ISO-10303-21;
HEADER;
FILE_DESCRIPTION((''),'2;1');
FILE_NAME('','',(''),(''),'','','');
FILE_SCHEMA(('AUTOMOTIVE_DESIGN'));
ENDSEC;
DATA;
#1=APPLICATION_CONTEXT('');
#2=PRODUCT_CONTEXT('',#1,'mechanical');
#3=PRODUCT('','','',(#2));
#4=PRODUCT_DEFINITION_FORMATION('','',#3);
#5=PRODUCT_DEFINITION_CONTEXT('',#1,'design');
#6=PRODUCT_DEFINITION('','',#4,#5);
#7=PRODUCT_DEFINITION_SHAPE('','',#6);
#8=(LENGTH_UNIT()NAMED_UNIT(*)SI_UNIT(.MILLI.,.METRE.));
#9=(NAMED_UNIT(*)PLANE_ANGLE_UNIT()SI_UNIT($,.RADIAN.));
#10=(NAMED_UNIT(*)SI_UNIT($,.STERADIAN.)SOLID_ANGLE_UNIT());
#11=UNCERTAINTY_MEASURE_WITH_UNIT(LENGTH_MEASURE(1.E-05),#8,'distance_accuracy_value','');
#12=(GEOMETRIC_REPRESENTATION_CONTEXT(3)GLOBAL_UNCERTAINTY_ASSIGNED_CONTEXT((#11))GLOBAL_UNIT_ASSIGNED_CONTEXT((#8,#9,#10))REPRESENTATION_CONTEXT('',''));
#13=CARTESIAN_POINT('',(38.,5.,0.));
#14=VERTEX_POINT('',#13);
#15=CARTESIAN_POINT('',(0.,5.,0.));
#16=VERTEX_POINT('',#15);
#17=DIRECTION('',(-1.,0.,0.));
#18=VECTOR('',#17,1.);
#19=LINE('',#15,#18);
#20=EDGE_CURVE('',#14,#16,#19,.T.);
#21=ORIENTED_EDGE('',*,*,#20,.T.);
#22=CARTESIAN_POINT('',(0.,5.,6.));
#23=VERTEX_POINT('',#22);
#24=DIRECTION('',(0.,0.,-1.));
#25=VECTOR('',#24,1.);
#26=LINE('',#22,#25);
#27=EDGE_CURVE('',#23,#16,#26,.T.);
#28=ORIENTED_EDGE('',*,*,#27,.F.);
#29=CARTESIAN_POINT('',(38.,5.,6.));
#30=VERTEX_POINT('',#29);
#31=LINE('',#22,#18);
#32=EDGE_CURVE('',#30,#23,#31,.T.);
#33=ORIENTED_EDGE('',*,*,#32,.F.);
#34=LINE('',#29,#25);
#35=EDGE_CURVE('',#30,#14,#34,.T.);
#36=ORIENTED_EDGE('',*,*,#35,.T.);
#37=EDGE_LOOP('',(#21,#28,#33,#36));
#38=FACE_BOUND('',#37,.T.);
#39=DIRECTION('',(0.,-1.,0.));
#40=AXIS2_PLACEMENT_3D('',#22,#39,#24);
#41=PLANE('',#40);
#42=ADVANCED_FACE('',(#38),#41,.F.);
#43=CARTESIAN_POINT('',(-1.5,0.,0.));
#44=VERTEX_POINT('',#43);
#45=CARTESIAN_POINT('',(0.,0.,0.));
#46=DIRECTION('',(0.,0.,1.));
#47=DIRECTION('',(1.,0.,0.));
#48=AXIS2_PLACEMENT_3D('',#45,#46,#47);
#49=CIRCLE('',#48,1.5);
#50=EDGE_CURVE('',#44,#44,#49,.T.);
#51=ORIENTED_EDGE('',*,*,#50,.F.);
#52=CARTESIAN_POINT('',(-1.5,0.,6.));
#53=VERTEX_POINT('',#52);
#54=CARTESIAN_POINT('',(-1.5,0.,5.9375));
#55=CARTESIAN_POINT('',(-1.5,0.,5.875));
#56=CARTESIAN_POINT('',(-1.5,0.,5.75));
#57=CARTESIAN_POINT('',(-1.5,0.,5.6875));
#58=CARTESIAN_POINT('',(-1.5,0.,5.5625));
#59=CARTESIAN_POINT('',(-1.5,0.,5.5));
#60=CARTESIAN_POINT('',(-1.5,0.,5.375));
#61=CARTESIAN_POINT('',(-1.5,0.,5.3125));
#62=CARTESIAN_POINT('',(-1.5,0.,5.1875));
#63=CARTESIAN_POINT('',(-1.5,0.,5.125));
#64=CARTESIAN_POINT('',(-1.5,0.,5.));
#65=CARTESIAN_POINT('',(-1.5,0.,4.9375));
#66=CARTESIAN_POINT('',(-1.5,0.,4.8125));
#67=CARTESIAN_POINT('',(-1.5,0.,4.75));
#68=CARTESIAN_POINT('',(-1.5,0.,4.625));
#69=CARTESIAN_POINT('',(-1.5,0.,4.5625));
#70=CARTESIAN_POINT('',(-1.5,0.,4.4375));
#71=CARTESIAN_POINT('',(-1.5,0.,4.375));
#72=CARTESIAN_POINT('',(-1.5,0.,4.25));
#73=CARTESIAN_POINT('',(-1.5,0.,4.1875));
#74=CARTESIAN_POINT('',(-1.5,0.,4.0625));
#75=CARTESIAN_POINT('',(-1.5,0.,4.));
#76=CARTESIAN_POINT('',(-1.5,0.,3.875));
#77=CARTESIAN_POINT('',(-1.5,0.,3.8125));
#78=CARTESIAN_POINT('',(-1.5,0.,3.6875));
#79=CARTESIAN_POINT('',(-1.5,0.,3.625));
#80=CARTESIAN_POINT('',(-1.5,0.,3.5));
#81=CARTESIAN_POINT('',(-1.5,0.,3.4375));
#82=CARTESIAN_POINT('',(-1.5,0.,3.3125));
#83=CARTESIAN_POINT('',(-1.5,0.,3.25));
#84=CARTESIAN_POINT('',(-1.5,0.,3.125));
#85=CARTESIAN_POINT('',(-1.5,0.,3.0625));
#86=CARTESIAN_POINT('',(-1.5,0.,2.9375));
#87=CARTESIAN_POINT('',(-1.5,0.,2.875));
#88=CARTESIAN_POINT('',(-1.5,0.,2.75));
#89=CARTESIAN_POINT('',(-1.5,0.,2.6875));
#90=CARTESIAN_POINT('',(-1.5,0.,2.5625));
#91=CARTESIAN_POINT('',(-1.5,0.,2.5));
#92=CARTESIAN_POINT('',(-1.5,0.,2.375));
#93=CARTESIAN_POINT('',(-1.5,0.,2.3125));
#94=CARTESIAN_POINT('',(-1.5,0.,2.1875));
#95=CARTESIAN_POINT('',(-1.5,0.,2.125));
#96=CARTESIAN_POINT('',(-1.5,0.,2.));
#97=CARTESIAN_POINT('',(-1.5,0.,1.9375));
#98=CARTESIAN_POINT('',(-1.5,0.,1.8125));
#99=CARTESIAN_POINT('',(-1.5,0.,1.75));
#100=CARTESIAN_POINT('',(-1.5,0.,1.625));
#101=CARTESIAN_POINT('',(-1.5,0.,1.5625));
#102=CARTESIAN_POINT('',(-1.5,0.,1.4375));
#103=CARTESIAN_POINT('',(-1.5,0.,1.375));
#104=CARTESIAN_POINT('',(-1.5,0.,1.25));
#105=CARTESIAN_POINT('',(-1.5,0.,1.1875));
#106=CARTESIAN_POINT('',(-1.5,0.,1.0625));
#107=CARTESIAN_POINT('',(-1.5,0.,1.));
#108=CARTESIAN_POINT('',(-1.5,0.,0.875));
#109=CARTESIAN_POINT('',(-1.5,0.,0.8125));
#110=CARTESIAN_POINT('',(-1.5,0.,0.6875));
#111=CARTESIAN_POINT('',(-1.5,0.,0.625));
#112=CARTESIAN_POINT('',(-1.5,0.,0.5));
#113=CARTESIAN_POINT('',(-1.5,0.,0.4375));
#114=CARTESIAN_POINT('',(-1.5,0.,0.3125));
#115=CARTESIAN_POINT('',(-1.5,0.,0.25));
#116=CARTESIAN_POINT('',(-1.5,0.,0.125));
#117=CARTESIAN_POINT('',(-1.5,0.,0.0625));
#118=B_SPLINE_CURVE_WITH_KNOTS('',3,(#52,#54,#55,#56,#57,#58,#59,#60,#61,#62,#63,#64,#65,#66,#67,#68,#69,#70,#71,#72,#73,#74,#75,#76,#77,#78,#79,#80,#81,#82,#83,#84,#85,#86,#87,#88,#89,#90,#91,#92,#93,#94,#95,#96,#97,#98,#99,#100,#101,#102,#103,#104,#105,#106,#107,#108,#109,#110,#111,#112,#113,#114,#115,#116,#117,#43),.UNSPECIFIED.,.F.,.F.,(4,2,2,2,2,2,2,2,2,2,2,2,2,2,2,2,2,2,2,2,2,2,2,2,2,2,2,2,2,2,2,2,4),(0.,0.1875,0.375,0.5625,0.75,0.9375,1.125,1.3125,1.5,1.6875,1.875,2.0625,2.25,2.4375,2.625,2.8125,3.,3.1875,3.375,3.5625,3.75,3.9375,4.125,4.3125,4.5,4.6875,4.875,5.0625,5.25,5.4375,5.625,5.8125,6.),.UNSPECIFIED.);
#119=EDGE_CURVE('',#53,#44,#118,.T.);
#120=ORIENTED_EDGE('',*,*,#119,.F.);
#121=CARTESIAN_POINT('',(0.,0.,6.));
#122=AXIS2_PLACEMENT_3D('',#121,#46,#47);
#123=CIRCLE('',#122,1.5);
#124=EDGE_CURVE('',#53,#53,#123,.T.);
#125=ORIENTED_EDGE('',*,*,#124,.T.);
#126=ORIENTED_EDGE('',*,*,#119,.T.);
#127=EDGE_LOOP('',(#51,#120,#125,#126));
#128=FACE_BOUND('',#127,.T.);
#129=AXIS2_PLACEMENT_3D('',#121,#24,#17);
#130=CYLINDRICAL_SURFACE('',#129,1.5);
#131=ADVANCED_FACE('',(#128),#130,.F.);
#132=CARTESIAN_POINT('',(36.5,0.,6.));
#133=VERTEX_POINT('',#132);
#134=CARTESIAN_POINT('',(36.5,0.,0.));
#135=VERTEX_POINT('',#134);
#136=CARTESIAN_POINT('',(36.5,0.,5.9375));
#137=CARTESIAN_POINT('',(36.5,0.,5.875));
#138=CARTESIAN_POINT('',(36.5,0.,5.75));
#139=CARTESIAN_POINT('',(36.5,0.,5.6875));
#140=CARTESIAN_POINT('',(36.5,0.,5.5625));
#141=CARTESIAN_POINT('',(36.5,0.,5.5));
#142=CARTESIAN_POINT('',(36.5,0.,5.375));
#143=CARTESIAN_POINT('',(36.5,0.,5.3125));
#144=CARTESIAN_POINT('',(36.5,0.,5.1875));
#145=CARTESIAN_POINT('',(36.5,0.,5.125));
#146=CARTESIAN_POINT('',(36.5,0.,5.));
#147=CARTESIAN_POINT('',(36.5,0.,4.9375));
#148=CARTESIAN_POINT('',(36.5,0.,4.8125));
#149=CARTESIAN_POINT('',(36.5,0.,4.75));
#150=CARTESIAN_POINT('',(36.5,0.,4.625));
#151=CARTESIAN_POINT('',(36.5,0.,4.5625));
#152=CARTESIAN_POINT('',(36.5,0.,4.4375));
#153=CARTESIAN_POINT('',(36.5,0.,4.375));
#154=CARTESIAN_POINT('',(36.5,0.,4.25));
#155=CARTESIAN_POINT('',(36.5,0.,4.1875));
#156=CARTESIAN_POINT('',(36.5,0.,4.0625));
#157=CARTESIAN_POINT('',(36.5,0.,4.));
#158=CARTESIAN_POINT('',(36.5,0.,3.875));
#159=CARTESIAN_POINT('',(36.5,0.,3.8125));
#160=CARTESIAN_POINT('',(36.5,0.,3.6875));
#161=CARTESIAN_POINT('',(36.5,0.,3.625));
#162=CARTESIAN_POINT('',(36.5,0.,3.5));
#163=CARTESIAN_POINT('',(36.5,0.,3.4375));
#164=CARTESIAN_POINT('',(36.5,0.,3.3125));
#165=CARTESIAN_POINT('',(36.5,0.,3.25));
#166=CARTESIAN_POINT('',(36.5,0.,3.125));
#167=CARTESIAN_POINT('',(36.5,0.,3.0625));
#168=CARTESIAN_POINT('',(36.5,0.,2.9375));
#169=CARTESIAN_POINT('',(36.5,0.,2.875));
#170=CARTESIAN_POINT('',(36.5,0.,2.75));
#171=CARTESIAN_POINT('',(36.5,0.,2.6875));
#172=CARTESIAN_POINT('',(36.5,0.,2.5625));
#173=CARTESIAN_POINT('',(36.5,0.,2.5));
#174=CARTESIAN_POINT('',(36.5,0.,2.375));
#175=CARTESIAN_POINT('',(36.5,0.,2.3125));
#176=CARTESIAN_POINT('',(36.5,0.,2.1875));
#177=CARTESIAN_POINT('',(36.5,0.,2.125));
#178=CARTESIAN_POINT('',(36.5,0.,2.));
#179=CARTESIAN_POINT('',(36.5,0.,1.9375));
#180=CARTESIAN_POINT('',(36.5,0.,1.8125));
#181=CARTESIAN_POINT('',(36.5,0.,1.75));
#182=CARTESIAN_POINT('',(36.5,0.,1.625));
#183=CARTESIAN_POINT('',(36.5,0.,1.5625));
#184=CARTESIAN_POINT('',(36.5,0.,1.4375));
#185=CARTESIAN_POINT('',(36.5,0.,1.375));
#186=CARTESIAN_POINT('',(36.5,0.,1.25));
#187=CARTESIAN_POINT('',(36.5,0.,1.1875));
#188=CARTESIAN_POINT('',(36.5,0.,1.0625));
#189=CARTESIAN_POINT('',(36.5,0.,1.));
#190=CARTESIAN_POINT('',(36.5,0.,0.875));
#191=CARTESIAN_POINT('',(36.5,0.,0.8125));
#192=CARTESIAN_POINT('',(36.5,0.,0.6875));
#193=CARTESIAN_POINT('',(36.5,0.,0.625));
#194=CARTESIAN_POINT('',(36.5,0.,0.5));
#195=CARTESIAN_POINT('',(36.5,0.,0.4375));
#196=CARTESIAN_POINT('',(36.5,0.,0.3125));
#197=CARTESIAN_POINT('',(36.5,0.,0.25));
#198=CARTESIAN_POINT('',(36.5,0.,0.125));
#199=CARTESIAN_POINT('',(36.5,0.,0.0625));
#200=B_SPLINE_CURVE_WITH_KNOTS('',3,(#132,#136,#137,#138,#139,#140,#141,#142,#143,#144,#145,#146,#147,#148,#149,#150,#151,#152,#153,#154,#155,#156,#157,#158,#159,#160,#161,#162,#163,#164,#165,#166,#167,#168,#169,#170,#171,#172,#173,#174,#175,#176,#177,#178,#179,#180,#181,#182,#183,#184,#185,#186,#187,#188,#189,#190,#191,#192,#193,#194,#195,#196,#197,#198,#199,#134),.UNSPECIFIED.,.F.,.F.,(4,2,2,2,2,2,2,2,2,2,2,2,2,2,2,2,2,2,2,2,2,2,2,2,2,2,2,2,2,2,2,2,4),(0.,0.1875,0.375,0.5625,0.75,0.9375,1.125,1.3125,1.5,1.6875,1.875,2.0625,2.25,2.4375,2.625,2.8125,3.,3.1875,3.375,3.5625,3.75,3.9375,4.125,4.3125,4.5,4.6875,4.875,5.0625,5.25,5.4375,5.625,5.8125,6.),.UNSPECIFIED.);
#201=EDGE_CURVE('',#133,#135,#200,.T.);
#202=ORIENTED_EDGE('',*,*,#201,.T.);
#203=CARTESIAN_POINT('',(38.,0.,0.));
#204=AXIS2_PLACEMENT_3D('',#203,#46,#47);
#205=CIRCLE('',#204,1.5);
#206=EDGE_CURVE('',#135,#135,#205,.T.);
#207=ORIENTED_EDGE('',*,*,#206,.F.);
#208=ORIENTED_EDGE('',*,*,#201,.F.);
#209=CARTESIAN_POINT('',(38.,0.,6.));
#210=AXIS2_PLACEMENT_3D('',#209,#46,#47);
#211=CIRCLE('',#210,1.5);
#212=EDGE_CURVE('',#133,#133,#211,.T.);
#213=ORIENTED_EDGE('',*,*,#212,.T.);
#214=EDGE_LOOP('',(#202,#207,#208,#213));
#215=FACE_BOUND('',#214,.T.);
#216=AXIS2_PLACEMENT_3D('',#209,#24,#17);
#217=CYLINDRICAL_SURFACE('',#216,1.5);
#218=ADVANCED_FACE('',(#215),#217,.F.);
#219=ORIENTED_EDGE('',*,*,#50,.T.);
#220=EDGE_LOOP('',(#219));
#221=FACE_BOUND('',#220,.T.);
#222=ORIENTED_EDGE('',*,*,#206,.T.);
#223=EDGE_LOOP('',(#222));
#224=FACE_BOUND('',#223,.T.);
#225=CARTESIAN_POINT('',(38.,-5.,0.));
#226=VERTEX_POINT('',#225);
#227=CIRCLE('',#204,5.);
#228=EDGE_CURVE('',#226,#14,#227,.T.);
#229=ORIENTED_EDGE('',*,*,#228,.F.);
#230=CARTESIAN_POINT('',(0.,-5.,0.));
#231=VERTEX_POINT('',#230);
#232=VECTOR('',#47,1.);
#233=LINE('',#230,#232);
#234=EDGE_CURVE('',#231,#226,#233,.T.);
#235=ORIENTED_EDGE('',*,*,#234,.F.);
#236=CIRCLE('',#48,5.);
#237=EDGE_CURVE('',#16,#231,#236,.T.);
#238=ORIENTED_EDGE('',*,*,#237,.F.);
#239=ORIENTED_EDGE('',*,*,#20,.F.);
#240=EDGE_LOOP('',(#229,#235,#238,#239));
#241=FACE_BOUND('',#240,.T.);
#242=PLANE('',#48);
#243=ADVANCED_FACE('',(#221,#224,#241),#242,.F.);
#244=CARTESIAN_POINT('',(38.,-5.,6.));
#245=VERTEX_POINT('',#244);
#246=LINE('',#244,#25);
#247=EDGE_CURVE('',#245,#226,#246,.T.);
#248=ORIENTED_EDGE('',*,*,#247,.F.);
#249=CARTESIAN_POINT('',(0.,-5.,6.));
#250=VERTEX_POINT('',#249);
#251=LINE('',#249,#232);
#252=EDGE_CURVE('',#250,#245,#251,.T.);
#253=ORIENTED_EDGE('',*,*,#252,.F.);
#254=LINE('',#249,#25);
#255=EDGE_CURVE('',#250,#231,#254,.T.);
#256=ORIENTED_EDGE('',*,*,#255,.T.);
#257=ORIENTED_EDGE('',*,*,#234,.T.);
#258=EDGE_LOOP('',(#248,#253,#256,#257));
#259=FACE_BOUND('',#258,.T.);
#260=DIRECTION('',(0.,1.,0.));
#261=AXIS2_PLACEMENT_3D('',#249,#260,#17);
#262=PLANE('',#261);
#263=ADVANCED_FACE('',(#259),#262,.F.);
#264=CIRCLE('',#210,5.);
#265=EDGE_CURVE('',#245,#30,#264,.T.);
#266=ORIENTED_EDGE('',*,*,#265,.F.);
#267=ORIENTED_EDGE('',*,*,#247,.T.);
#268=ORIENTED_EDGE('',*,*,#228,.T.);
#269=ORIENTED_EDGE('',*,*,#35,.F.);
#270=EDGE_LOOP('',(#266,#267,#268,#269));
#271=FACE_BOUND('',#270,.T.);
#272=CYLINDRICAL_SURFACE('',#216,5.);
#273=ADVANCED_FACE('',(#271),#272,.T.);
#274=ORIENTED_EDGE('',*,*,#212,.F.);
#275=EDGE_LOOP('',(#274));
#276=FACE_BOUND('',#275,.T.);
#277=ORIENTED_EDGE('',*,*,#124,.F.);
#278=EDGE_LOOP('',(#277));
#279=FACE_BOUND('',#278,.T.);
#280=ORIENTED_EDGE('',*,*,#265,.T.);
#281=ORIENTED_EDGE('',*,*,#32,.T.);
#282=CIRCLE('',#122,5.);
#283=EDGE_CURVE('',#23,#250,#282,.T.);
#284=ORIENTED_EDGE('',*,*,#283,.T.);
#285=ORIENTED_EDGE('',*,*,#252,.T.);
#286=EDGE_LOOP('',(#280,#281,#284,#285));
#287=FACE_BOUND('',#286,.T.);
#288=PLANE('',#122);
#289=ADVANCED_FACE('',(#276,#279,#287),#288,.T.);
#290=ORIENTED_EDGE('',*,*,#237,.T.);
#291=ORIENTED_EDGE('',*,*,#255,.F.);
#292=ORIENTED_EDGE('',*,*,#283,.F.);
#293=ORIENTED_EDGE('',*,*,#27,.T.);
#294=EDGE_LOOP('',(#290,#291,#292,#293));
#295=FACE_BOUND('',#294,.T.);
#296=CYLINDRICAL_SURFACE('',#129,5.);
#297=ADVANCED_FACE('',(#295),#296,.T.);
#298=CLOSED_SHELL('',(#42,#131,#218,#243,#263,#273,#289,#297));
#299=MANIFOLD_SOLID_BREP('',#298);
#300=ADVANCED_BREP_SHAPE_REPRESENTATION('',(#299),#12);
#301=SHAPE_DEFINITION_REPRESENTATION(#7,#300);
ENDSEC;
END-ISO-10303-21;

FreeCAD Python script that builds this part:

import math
import FreeCAD as App
import Part
import Sketcher
Q = App.Units.Quantity

doc = App.newDocument("Part")
body = doc.addObject("PartDesign::Body", "Body")

# Sketch on XY plane
sketch1 = body.newObject("Sketcher::SketchObject", "Sketch")
sketch1.AttachmentSupport = (doc.getObject("XY_Plane"), [""])
sketch1.MapMode = "FlatFace"
sketch1.addGeometry([
    Part.LineSegment(App.Vector(38, 5, 0), App.Vector(0, 5, 0)),  # 0
    Part.ArcOfCircle(Part.Circle(App.Vector(0, 0, 0), App.Vector(0, 0, 1), 5), math.radians(90), math.radians(270)),  # 1
    Part.LineSegment(App.Vector(0, -5, 0), App.Vector(38, -5, 0)),  # 2
    Part.ArcOfCircle(Part.Circle(App.Vector(38, 0, 0), App.Vector(0, 0, 1), 5), math.radians(-90), math.radians(90)),  # 3
    Part.Circle(App.Vector(0, 0, 0), App.Vector(0, 0, 1), 1.5),  # 4
    Part.Circle(App.Vector(38, 0, 0), App.Vector(0, 0, 1), 1.5),  # 5
], False)
sketch1.addConstraint([
    Sketcher.Constraint("Tangent", 0, 2, 1, 1),
    Sketcher.Constraint("Tangent", 1, 2, 2, 1),
    Sketcher.Constraint("Tangent", 2, 2, 3, 1),
    Sketcher.Constraint("Tangent", 3, 2, 0, 1),
    Sketcher.Constraint("Horizontal", 0),
    Sketcher.Constraint("Horizontal", 2),
    Sketcher.Constraint("Coincident", 1, 3, -1, 1),
    Sketcher.Constraint("Coincident", 4, 3, -1, 1),
    Sketcher.Constraint("Coincident", 5, 3, 3, 3),
    Sketcher.Constraint("Equal", 4, 5),
    Sketcher.Constraint("Diameter", 4, Q("3 mm")),
    Sketcher.Constraint("Radius", 1, Q("5 mm")),
    Sketcher.Constraint("DistanceX", 0, 2, 0, 1, Q("38 mm")),
])
pad1 = body.newObject("PartDesign::Pad", "Pad")
pad1.Profile = sketch1
pad1.Length = 6

doc.recompute()
